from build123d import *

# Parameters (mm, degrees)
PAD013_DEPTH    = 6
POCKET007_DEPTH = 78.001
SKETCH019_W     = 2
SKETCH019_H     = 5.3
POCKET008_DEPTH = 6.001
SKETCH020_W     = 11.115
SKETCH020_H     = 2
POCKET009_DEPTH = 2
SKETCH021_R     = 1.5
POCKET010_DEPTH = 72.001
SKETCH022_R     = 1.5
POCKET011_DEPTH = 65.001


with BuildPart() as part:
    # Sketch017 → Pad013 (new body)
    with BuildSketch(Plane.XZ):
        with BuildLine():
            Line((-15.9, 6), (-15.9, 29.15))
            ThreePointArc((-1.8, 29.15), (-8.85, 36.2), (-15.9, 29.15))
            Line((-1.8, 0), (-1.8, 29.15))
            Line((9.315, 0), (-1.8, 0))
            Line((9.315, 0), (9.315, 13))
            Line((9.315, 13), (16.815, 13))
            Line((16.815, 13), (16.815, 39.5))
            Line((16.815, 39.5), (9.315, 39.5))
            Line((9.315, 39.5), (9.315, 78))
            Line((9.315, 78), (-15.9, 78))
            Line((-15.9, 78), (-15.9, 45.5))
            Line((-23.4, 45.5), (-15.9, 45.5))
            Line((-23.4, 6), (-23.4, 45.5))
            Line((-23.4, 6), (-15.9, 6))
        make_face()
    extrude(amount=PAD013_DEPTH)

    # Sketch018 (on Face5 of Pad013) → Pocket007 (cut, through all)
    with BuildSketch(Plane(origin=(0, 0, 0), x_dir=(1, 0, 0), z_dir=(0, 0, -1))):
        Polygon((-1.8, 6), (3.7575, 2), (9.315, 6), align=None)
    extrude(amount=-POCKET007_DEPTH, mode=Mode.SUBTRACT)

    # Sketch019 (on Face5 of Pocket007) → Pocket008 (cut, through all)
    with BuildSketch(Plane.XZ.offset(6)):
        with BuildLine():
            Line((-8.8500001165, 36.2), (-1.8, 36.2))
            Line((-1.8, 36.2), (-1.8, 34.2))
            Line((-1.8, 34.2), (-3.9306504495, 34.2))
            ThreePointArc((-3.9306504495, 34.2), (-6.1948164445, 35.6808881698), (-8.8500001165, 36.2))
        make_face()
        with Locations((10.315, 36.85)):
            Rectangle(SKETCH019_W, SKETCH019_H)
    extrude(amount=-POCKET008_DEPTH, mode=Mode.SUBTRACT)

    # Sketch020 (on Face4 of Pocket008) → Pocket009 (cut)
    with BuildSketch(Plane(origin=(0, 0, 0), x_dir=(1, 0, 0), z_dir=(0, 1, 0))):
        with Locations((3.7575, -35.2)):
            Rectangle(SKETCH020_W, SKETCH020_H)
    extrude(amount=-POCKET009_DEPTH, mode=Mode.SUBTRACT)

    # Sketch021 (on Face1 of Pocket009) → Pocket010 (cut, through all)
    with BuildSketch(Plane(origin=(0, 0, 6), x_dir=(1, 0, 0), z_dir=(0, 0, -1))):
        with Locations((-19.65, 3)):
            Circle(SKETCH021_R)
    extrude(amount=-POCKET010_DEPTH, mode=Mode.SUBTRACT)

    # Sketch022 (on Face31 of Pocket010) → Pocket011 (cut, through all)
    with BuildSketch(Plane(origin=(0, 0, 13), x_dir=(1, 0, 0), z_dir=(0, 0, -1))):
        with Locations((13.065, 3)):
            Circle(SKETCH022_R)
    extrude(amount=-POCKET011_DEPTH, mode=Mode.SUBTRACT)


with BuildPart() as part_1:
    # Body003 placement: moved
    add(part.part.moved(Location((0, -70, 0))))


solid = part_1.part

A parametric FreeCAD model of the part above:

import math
import FreeCAD as App
import Part
import Sketcher

V = App.Vector

doc = App.newDocument("Part")
params = doc.addObject("Spreadsheet::Sheet", "Params")
for row, (alias, value) in enumerate([
    ("sketch1_height", "13 mm"),
    ("sketch1_radius", "7.05 mm"),
    ("sketch1_width", "7.5 mm"),
    ("sketch1_height2", "26.5 mm"),
    ("sketch1_height3", "38.5 mm"),
    ("pad1_length", "6 mm"),
    ("sketch3_width", "2 mm"),
    ("sketch3_radius", "7.05 mm"),
    ("sketch3_height", "5.3 mm"),
    ("sketch3_width2", "7.05 mm"),
    ("sketch4_height", "2 mm"),
    ("pocket3_length", "2 mm"),
    ("sketch5_diameter", "3 mm"),
    ("sketch6_diameter", "3 mm"),
], start=1):
    params.set(f"A{row}", alias)
    params.set(f"B{row}", "=" + value)
    params.setAlias(f"B{row}", alias)

body = doc.addObject("PartDesign::Body", "Body")

sketch1 = body.newObject("Sketcher::SketchObject", "Sketch")
sketch1.AttachmentSupport = (doc.getObject("XZ_Plane"), [""])
sketch1.MapMode = "FlatFace"
sketch1.addGeometry(Part.LineSegment(V(-15.9, 6, 0), V(-15.9, 29.15, 0)), False)
sketch1.addGeometry(Part.ArcOfCircle(Part.Circle(V(-8.85, 29.15, 0), V(0, 0, 1), 7.05), math.radians(0), math.radians(180)), False)
sketch1.addGeometry(Part.LineSegment(V(-1.8, 29.15, 0), V(-1.8, 0, 0)), False)
sketch1.addGeometry(Part.LineSegment(V(-1.8, 0, 0), V(9.315, 0, 0)), False)
sketch1.addGeometry(Part.LineSegment(V(9.315, 0, 0), V(9.315, 13, 0)), False)
sketch1.addGeometry(Part.LineSegment(V(9.315, 13, 0), V(16.815, 13, 0)), False)
sketch1.addGeometry(Part.LineSegment(V(16.815, 13, 0), V(16.815, 39.5, 0)), False)
sketch1.addGeometry(Part.LineSegment(V(16.815, 39.5, 0), V(9.315, 39.5, 0)), False)
sketch1.addGeometry(Part.LineSegment(V(9.315, 39.5, 0), V(9.315, 78, 0)), False)
sketch1.addGeometry(Part.LineSegment(V(9.315, 78, 0), V(-15.9, 78, 0)), False)
sketch1.addGeometry(Part.LineSegment(V(-15.9, 78, 0), V(-15.9, 45.5, 0)), False)
sketch1.addGeometry(Part.LineSegment(V(-15.9, 45.5, 0), V(-23.4, 45.5, 0)), False)
sketch1.addGeometry(Part.LineSegment(V(-23.4, 45.5, 0), V(-23.4, 6, 0)), False)
sketch1.addGeometry(Part.LineSegment(V(-23.4, 6, 0), V(-15.9, 6, 0)), False)
sketch1.addConstraint(Sketcher.Constraint("Tangent", 0, 2, 1, 2))
sketch1.addConstraint(Sketcher.Constraint("Tangent", 1, 1, 2, 1))
sketch1.addConstraint(Sketcher.Constraint("Coincident", 2, 2, 3, 1))
sketch1.addConstraint(Sketcher.Constraint("Coincident", 3, 2, 4, 1))
sketch1.addConstraint(Sketcher.Constraint("Coincident", 4, 2, 5, 1))
sketch1.addConstraint(Sketcher.Constraint("Coincident", 5, 2, 6, 1))
sketch1.addConstraint(Sketcher.Constraint("Coincident", 6, 2, 7, 1))
sketch1.addConstraint(Sketcher.Constraint("Coincident", 7, 2, 8, 1))
sketch1.addConstraint(Sketcher.Constraint("Coincident", 8, 2, 9, 1))
sketch1.addConstraint(Sketcher.Constraint("Coincident", 9, 2, 10, 1))
sketch1.addConstraint(Sketcher.Constraint("Coincident", 10, 2, 11, 1))
sketch1.addConstraint(Sketcher.Constraint("Coincident", 11, 2, 12, 1))
sketch1.addConstraint(Sketcher.Constraint("Coincident", 12, 2, 13, 1))
sketch1.addConstraint(Sketcher.Constraint("Coincident", 13, 2, 0, 1))
sketch1.addConstraint(Sketcher.Constraint("Vertical", 0))
sketch1.addConstraint(Sketcher.Constraint("Vertical", 2))
sketch1.addConstraint(Sketcher.Constraint("Horizontal", 3))
sketch1.addConstraint(Sketcher.Constraint("Vertical", 4))
sketch1.addConstraint(Sketcher.Constraint("Horizontal", 5))
sketch1.addConstraint(Sketcher.Constraint("Vertical", 6))
sketch1.addConstraint(Sketcher.Constraint("Horizontal", 7))
sketch1.addConstraint(Sketcher.Constraint("Vertical", 8))
sketch1.addConstraint(Sketcher.Constraint("Horizontal", 9))
sketch1.addConstraint(Sketcher.Constraint("Vertical", 10))
sketch1.addConstraint(Sketcher.Constraint("Horizontal", 11))
sketch1.addConstraint(Sketcher.Constraint("Vertical", 12))
sketch1.addConstraint(Sketcher.Constraint("Horizontal", 13))
sketch1.addConstraint(Sketcher.Constraint("PointOnObject", 2, 2, -1))
sketch1.addConstraint(Sketcher.Constraint("Vertical", 4, 2, 7, 2))
sketch1.addConstraint(Sketcher.Constraint("Vertical", 0, 2, 9, 2))
sketch1.addConstraint(Sketcher.Constraint("Equal", 7, 11))
sketch1.addConstraint(Sketcher.Constraint("DistanceY", 4, 1, 4, 2, 13.0))
sketch1.addConstraint(Sketcher.Constraint("Radius", 1, 7.05))
sketch1.addConstraint(Sketcher.Constraint("DistanceX", 5, 1, 5, 2, 7.5))
sketch1.addConstraint(Sketcher.Constraint("DistanceY", 6, 1, 6, 2, 26.5))
sketch1.addConstraint(Sketcher.Constraint("DistanceY", 8, 1, 8, 2, 38.5))
sketch1.addConstraint(Sketcher.Constraint("DistanceY", 10, 2, 10, 1, 32.5))
sketch1.addConstraint(Sketcher.Constraint("DistanceY", 12, 2, 12, 1, 39.5))
sketch1.addConstraint(Sketcher.Constraint("DistanceY", 0, 1, 0, 2, 23.15))
sketch1.addConstraint(Sketcher.Constraint("DistanceX", 0, 2, -1, 1, 15.9))
sketch1.addConstraint(Sketcher.Constraint("DistanceX", 3, 1, 3, 2, 11.115))
sketch1.setExpression("Constraints[31]", "Params.sketch1_height")
sketch1.setExpression("Constraints[32]", "Params.sketch1_radius")
sketch1.setExpression("Constraints[33]", "Params.sketch1_width")
sketch1.setExpression("Constraints[34]", "Params.sketch1_height2")
sketch1.setExpression("Constraints[35]", "Params.sketch1_height3")
pad1 = body.newObject("PartDesign::Pad", "Pad")
pad1.Profile = sketch1
pad1.setExpression("Length", "Params.pad1_length")

sketch2 = body.newObject("Sketcher::SketchObject", "Sketch001")
sketch2.AttachmentSupport = (doc.getObject("XY_Plane"), [""])
sketch2.MapMode = "FlatFace"
sketch2.addGeometry(Part.LineSegment(V(-1.8, -6, 0), V(3.7575, -2, 0)), False)
sketch2.addGeometry(Part.LineSegment(V(3.7575, -2, 0), V(9.315, -6, 0)), False)
sketch2.addGeometry(Part.LineSegment(V(9.315, -6, 0), V(-1.8, -6, 0)), False)
sketch2.addConstraint(Sketcher.Constraint("Coincident", 0, 2, 1, 1))
sketch2.addConstraint(Sketcher.Constraint("Coincident", 1, 2, 2, 1))
sketch2.addConstraint(Sketcher.Constraint("Coincident", 2, 2, 0, 1))
sketch2.addConstraint(Sketcher.Constraint("Horizontal", 2))
sketch2.addConstraint(Sketcher.Constraint("Equal", 0, 1))
sketch2.addConstraint(Sketcher.Constraint("DistanceY", 0, 2, -1, 1, 2.0))
sketch2.addConstraint(Sketcher.Constraint("DistanceY", 1, 2, -1, 1, 6.0))
sketch2.addConstraint(Sketcher.Constraint("DistanceX", 2, 2, -1, 1, 1.8))
sketch2.addConstraint(Sketcher.Constraint("DistanceX", 2, 2, 2, 1, 11.115))
pocket1 = body.newObject("PartDesign::Pocket", "Pocket")
pocket1.Profile = sketch2
pocket1.Type = "ThroughAll"
pocket1.Reversed = True

sketch3 = body.newObject("Sketcher::SketchObject", "Sketch002")
sketch3.AttachmentSupport = (doc.getObject("XZ_Plane"), [""])
sketch3.MapMode = "FlatFace"
sketch3.AttachmentOffset = App.Placement(V(0, 0, 6), App.Rotation())
sketch3.addGeometry(Part.LineSegment(V(-1.8, 36.2, 0), V(-8.85, 36.2, 0)), False)
sketch3.addGeometry(Part.ArcOfCircle(Part.Circle(V(-8.85, 29.15, 0), V(0, 0, 1), 7.05), math.radians(45.75083), math.radians(90.000001)), False)
sketch3.addGeometry(Part.LineSegment(V(-3.93065, 34.2, 0), V(-1.8, 34.2, 0)), False)
sketch3.addGeometry(Part.LineSegment(V(-1.8, 34.2, 0), V(-1.8, 36.2, 0)), False)
sketch3.addGeometry(Part.LineSegment(V(9.315, 39.5, 0), V(9.315, 34.2, 0)), False)
sketch3.addGeometry(Part.LineSegment(V(9.315, 34.2, 0), V(11.315, 34.2, 0)), False)
sketch3.addGeometry(Part.LineSegment(V(11.315, 34.2, 0), V(11.315, 39.5, 0)), False)
sketch3.addGeometry(Part.LineSegment(V(11.315, 39.5, 0), V(9.315, 39.5, 0)), False)
sketch3.addConstraint(Sketcher.Constraint("Tangent", 0, 2, 1, 2))
sketch3.addConstraint(Sketcher.Constraint("Coincident", 1, 1, 2, 1))
sketch3.addConstraint(Sketcher.Constraint("Coincident", 2, 2, 3, 1))
sketch3.addConstraint(Sketcher.Constraint("Coincident", 3, 2, 0, 1))
sketch3.addConstraint(Sketcher.Constraint("Coincident", 4, 2, 5, 1))
sketch3.addConstraint(Sketcher.Constraint("Coincident", 5, 2, 6, 1))
sketch3.addConstraint(Sketcher.Constraint("Coincident", 6, 2, 7, 1))
sketch3.addConstraint(Sketcher.Constraint("Coincident", 7, 2, 4, 1))
sketch3.addConstraint(Sketcher.Constraint("Horizontal", 0))
sketch3.addConstraint(Sketcher.Constraint("Horizontal", 2))
sketch3.addConstraint(Sketcher.Constraint("Vertical", 3))
sketch3.addConstraint(Sketcher.Constraint("Vertical", 4))
sketch3.addConstraint(Sketcher.Constraint("Horizontal", 5))
sketch3.addConstraint(Sketcher.Constraint("Vertical", 6))
sketch3.addConstraint(Sketcher.Constraint("Horizontal", 7))
sketch3.addConstraint(Sketcher.Constraint("Horizontal", 2, 2, 4, 2))
sketch3.addConstraint(Sketcher.Constraint("Equal", 7, 3))
sketch3.addConstraint(Sketcher.Constraint("DistanceX", 5, 1, 5, 2, 2.0))
sketch3.addConstraint(Sketcher.Constraint("Radius", 1, 7.05))
sketch3.addConstraint(Sketcher.Constraint("DistanceY", 4, 2, 4, 1, 5.3))
sketch3.addConstraint(Sketcher.Constraint("DistanceX", 0, 2, 0, 1, 7.05))
sketch3.addConstraint(Sketcher.Constraint("DistanceY", -1, 1, 0, 2, 36.2))
sketch3.addConstraint(Sketcher.Constraint("DistanceX", 2, 2, -1, 1, 1.8))
sketch3.addConstraint(Sketcher.Constraint("DistanceX", -1, 1, 4, 2, 9.315))
sketch3.setExpression("Constraints[17]", "Params.sketch3_width")
sketch3.setExpression("Constraints[18]", "Params.sketch3_radius")
sketch3.setExpression("Constraints[19]", "Params.sketch3_height")
sketch3.setExpression("Constraints[20]", "Params.sketch3_width2")
pocket2 = body.newObject("PartDesign::Pocket", "Pocket001")
pocket2.Profile = sketch3
pocket2.Type = "ThroughAll"

sketch4 = body.newObject("Sketcher::SketchObject", "Sketch003")
sketch4.AttachmentSupport = (doc.getObject("XZ_Plane"), [""])
sketch4.MapMode = "FlatFace"
sketch4.addGeometry(Part.LineSegment(V(-1.8, 34.2, 0), V(-1.8, 36.2, 0)), False)
sketch4.addGeometry(Part.LineSegment(V(-1.8, 36.2, 0), V(9.315, 36.2, 0)), False)
sketch4.addGeometry(Part.LineSegment(V(9.315, 36.2, 0), V(9.315, 34.2, 0)), False)
sketch4.addGeometry(Part.LineSegment(V(9.315, 34.2, 0), V(-1.8, 34.2, 0)), False)
sketch4.addConstraint(Sketcher.Constraint("Coincident", 0, 2, 1, 1))
sketch4.addConstraint(Sketcher.Constraint("Coincident", 1, 2, 2, 1))
sketch4.addConstraint(Sketcher.Constraint("Coincident", 2, 2, 3, 1))
sketch4.addConstraint(Sketcher.Constraint("Coincident", 3, 2, 0, 1))
sketch4.addConstraint(Sketcher.Constraint("Vertical", 0))
sketch4.addConstraint(Sketcher.Constraint("Horizontal", 1))
sketch4.addConstraint(Sketcher.Constraint("Vertical", 2))
sketch4.addConstraint(Sketcher.Constraint("Horizontal", 3))
sketch4.addConstraint(Sketcher.Constraint("DistanceY", 0, 1, 0, 2, 2.0))
sketch4.addConstraint(Sketcher.Constraint("DistanceX", 0, 2, -1, 1, 1.8))
sketch4.addConstraint(Sketcher.Constraint("DistanceY", -1, 1, 0, 2, 36.2))
sketch4.addConstraint(Sketcher.Constraint("DistanceX", 1, 1, 1, 2, 11.115))
sketch4.setExpression("Constraints[8]", "Params.sketch4_height")
pocket3 = body.newObject("PartDesign::Pocket", "Pocket002")
pocket3.Profile = sketch4
pocket3.setExpression("Length", "Params.pocket3_length")
pocket3.Reversed = True

sketch5 = body.newObject("Sketcher::SketchObject", "Sketch004")
sketch5.AttachmentSupport = (doc.getObject("XY_Plane"), [""])
sketch5.MapMode = "FlatFace"
sketch5.AttachmentOffset = App.Placement(V(0, 0, 6), App.Rotation())
sketch5.addGeometry(Part.Circle(V(-19.65, -3, 0), V(0, 0, 1), 1.5), False)
sketch5.addConstraint(Sketcher.Constraint("Diameter", 0, 3.0))
sketch5.addConstraint(Sketcher.Constraint("DistanceY", 0, 3, -1, 1, 3.0))
sketch5.addConstraint(Sketcher.Constraint("DistanceX", 0, 3, -1, 1, 19.65))
sketch5.setExpression("Constraints[0]", "Params.sketch5_diameter")
pocket4 = body.newObject("PartDesign::Pocket", "Pocket003")
pocket4.Profile = sketch5
pocket4.Type = "ThroughAll"
pocket4.Reversed = True

sketch6 = body.newObject("Sketcher::SketchObject", "Sketch005")
sketch6.AttachmentSupport = (doc.getObject("XY_Plane"), [""])
sketch6.MapMode = "FlatFace"
sketch6.AttachmentOffset = App.Placement(V(0, 0, 13), App.Rotation())
sketch6.addGeometry(Part.Circle(V(13.065, -3, 0), V(0, 0, 1), 1.5), False)
sketch6.addConstraint(Sketcher.Constraint("Diameter", 0, 3.0))
sketch6.addConstraint(Sketcher.Constraint("DistanceY", 0, 3, -1, 1, 3.0))
sketch6.addConstraint(Sketcher.Constraint("DistanceX", -1, 1, 0, 3, 13.065))
sketch6.setExpression("Constraints[0]", "Params.sketch6_diameter")
pocket5 = body.newObject("PartDesign::Pocket", "Pocket004")
pocket5.Profile = sketch6
pocket5.Type = "ThroughAll"
pocket5.Reversed = True
body2 = doc.addObject("PartDesign::Body", "Body001")
doc.recompute()

body.Placement = App.Placement(V(0, -70, 0), App.Rotation(V(0, 0, 1), 0))
boolean = body2.newObject("PartDesign::Boolean", "Boolean")
boolean.Type = "Fuse"
boolean.addObjects([body])

doc.recompute()
